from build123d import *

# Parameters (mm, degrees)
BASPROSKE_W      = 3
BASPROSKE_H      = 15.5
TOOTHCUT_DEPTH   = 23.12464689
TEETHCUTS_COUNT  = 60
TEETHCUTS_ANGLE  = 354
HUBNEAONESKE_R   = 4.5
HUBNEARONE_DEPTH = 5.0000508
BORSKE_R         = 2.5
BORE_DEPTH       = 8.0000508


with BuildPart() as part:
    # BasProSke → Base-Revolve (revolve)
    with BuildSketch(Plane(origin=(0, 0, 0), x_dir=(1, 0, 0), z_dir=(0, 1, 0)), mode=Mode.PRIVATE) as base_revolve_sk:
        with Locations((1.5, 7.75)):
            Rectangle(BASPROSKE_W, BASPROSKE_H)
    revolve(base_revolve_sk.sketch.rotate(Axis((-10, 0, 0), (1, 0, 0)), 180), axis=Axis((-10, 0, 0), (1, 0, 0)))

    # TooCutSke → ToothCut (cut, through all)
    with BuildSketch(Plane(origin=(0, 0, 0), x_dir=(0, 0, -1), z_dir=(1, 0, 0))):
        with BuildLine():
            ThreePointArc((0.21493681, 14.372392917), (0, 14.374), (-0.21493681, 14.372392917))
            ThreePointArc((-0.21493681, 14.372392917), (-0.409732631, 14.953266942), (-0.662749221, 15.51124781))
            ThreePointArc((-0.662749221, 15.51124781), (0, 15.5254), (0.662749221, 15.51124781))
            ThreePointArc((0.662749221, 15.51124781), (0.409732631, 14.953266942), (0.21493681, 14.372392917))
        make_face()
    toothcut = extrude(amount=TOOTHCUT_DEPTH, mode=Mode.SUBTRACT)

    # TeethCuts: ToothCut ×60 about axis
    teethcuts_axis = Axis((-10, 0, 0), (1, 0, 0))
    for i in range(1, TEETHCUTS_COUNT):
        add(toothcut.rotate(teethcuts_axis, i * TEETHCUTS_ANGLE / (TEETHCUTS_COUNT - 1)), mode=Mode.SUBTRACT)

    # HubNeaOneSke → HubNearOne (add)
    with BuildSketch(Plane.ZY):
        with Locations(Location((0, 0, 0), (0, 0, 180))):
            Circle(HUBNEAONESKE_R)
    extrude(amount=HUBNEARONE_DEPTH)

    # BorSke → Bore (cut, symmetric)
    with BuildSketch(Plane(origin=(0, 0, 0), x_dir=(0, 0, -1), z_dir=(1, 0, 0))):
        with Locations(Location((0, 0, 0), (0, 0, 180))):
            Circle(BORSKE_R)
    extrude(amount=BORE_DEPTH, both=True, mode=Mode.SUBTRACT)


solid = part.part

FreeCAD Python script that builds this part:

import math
import FreeCAD as App
import Part
import Sketcher
from FreeCAD import Vector
Q = App.Units.Quantity

doc = App.newDocument("Part")
body = doc.addObject("PartDesign::Body", "Body")

# Sketch on XZ plane
sketch1 = doc.addObject("Sketcher::SketchObject", "Sketch")
body.addObject(sketch1)
sketch1.AttachmentSupport = (doc.XZ_Plane, [""])
sketch1.MapMode = "FlatFace"
sketch1.addGeometry([
    Part.LineSegment(Vector(0, -15.5, 0), Vector(0, 0, 0)),
    Part.LineSegment(Vector(0, 0, 0), Vector(3, 0, 0)),
    Part.LineSegment(Vector(3, 0, 0), Vector(3, -15.5, 0)),
    Part.LineSegment(Vector(3, -15.5, 0), Vector(0, -15.5, 0)),
], False)
sketch1.addConstraint([
    Sketcher.Constraint("Coincident", 0, 2, 1, 1),
    Sketcher.Constraint("Coincident", 1, 2, 2, 1),
    Sketcher.Constraint("Coincident", 2, 2, 3, 1),
    Sketcher.Constraint("Coincident", 3, 2, 0, 1),
    Sketcher.Constraint("Vertical", 0),
    Sketcher.Constraint("Horizontal", 1),
    Sketcher.Constraint("Vertical", 2),
    Sketcher.Constraint("Horizontal", 3),
    Sketcher.Constraint("Coincident", 0, 2, -1, 1),
    Sketcher.Constraint("DistanceX", 1, 1, 1, 2, Q("3 mm")),
    Sketcher.Constraint("DistanceY", 0, 1, 0, 2, Q("15.5 mm")),
])
revolution = doc.addObject("PartDesign::Revolution", "Revolution")
body.addObject(revolution)
revolution.Profile = sketch1
revolution.ReferenceAxis = (sketch1, ["H_Axis"])
revolution.Angle = 360

# Sketch on YZ plane
sketch2 = doc.addObject("Sketcher::SketchObject", "Sketch001")
body.addObject(sketch2)
sketch2.AttachmentSupport = (doc.YZ_Plane, [""])
sketch2.MapMode = "FlatFace"
sketch2.addGeometry([
    Part.ArcOfCircle(Part.Circle(Vector(0.000002, 0, 0), Vector(0, 0, 1), 14.373998), math.radians(-0.856785), math.radians(0.856785)),
    Part.ArcOfCircle(Part.Circle(Vector(12.757632, -5.993565, 0), Vector(0, 0, 1), 6), math.radians(62.681531), math.radians(74.387686)),
    Part.ArcOfCircle(Part.Circle(Vector(0, 0, 0), Vector(0, 0, 1), 15.5254), math.radians(-2.446589), math.radians(2.446589)),
    Part.ArcOfCircle(Part.Circle(Vector(12.757632, 5.993565, 0), Vector(0, 0, 1), 6), math.radians(-74.387686), math.radians(-62.681531)),
], False)
sketch2.addConstraint([
    Sketcher.Constraint("Coincident", 0, 1, 1, 2),
    Sketcher.Constraint("Coincident", 1, 1, 2, 1),
    Sketcher.Constraint("Coincident", 2, 2, 3, 2),
    Sketcher.Constraint("Coincident", 3, 1, 0, 2),
    Sketcher.Constraint("Coincident", 0, 3, -1, 1),
    Sketcher.Constraint("Coincident", 2, 3, -1, 1),
    Sketcher.Constraint("Equal", 1, 3),
    Sketcher.Constraint("Symmetric", 1, 3, 3, 3, -1),
    Sketcher.Constraint("Radius", 1, Q("6 mm")),
    Sketcher.Constraint("Radius", 2, Q("15.5254 mm")),
    Sketcher.Constraint("Radius", 0, Q("14.373998 mm")),
    Sketcher.Constraint("DistanceY", 1, 1, 2, 2, Q("1.325498 mm")),
    Sketcher.Constraint("DistanceX", 0, 3, 1, 3, Q("12.75763 mm")),
])
pocket1 = doc.addObject("PartDesign::Pocket", "Pocket")
body.addObject(pocket1)
pocket1.Profile = sketch2
pocket1.Type = "ThroughAll"
pocket1.Reversed = True
doc.recompute()

polarpattern = doc.addObject("PartDesign::PolarPattern", "PolarPattern")
body.addObject(polarpattern)
polarpattern.Originals = [pocket1]
polarpattern.Axis = (doc.X_Axis, [""])
polarpattern.Angle = 360
polarpattern.Occurrences = 60
body.Tip = polarpattern

# Sketch on YZ plane
sketch3 = doc.addObject("Sketcher::SketchObject", "Sketch002")
body.addObject(sketch3)
sketch3.AttachmentSupport = (doc.YZ_Plane, [""])
sketch3.MapMode = "FlatFace"
sketch3.addGeometry(Part.Circle(Vector(0, 0, 0), Vector(0, 0, 1), 4.5), False)
sketch3.addConstraint([
    Sketcher.Constraint("Coincident", 0, 3, -1, 1),
    Sketcher.Constraint("Diameter", 0, Q("9 mm")),
])
pad1 = doc.addObject("PartDesign::Pad", "Pad")
body.addObject(pad1)
pad1.Profile = sketch3
pad1.Length = 5.000051
pad1.Reversed = True

# Sketch on YZ plane
sketch4 = doc.addObject("Sketcher::SketchObject", "Sketch003")
body.addObject(sketch4)
sketch4.AttachmentSupport = (doc.YZ_Plane, [""])
sketch4.MapMode = "FlatFace"
sketch4.addGeometry(Part.Circle(Vector(0, 0, 0), Vector(0, 0, 1), 2.5), False)
sketch4.addConstraint([
    Sketcher.Constraint("Coincident", 0, 3, -1, 1),
    Sketcher.Constraint("Diameter", 0, Q("5 mm")),
])
pocket2 = doc.addObject("PartDesign::Pocket", "Pocket001")
body.addObject(pocket2)
pocket2.Profile = sketch4
pocket2.Length = 16.000102
pocket2.Midplane = True

doc.recompute()
